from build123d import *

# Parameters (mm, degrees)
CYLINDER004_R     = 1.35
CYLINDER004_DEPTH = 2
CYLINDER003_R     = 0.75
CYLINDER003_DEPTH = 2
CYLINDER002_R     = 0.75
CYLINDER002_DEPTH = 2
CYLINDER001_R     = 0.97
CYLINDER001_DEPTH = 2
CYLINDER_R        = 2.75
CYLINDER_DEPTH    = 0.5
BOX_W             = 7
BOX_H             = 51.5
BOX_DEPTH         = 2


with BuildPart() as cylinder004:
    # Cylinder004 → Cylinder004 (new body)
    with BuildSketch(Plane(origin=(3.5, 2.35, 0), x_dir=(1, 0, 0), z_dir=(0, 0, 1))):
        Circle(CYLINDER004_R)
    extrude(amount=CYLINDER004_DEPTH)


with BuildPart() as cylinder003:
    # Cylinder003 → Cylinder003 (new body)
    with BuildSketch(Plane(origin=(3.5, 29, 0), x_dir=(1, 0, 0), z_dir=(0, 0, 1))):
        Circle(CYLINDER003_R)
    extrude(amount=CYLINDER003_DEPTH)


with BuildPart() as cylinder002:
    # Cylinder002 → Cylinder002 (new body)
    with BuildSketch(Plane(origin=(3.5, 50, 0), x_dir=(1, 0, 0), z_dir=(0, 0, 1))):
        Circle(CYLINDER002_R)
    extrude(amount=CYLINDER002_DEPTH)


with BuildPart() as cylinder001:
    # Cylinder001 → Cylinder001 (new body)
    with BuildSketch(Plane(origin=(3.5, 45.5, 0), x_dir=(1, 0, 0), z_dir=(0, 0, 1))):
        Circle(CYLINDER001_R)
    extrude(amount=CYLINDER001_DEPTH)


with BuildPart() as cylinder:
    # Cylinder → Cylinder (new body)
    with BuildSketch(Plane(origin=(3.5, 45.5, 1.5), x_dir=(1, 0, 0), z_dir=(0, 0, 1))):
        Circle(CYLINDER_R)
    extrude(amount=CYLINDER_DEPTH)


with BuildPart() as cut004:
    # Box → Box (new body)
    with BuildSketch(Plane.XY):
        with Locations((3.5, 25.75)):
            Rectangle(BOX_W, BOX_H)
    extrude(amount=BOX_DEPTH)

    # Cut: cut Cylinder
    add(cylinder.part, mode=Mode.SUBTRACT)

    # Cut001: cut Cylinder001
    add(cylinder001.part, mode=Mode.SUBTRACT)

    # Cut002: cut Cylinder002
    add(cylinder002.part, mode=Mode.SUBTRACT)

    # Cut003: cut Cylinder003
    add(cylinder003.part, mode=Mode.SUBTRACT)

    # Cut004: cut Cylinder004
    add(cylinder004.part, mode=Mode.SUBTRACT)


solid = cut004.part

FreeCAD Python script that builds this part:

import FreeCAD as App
import Part
import Sketcher

V = App.Vector

doc = App.newDocument("Part")
body = doc.addObject("PartDesign::Body", "Body")

sketch1 = doc.addObject("Sketcher::SketchObject", "Sketch")
body.addObject(sketch1)
sketch1.AttachmentSupport = (doc.XY_Plane, [""])
sketch1.MapMode = "FlatFace"
sketch1.addGeometry(Part.Circle(V(3.5, 2.4, 0), V(0, 0, 1), 1.4), False)
sketch1.addConstraint([
    Sketcher.Constraint("Diameter", 0, 2.7),
    Sketcher.Constraint("DistanceX", -1, 1, 0, 3, 3.5),
    Sketcher.Constraint("DistanceY", -1, 1, 0, 3, 2.35),
])
pad1 = doc.addObject("PartDesign::Pad", "Pad")
body.addObject(pad1)
pad1.Profile = sketch1
pad1.Length = 2
body2 = doc.addObject("PartDesign::Body", "Body001")

sketch2 = doc.addObject("Sketcher::SketchObject", "Sketch001")
body2.addObject(sketch2)
sketch2.AttachmentSupport = (doc.getObject("XY_Plane001"), [""])
sketch2.MapMode = "FlatFace"
sketch2.addGeometry(Part.Circle(V(3.5, 29, 0), V(0, 0, 1), 0.8), False)
sketch2.addConstraint([
    Sketcher.Constraint("Diameter", 0, 1.5),
    Sketcher.Constraint("DistanceY", -1, 1, 0, 3, 29.0),
    Sketcher.Constraint("DistanceX", -1, 1, 0, 3, 3.5),
])
pad2 = doc.addObject("PartDesign::Pad", "Pad001")
body2.addObject(pad2)
pad2.Profile = sketch2
pad2.Length = 2
body3 = doc.addObject("PartDesign::Body", "Body002")

sketch3 = doc.addObject("Sketcher::SketchObject", "Sketch002")
body3.addObject(sketch3)
sketch3.AttachmentSupport = (doc.getObject("XY_Plane002"), [""])
sketch3.MapMode = "FlatFace"
sketch3.addGeometry(Part.Circle(V(3.5, 50, 0), V(0, 0, 1), 0.8), False)
sketch3.addConstraint([
    Sketcher.Constraint("Diameter", 0, 1.5),
    Sketcher.Constraint("DistanceY", -1, 1, 0, 3, 50.0),
    Sketcher.Constraint("DistanceX", -1, 1, 0, 3, 3.5),
])
pad3 = doc.addObject("PartDesign::Pad", "Pad002")
body3.addObject(pad3)
pad3.Profile = sketch3
pad3.Length = 2
body4 = doc.addObject("PartDesign::Body", "Body003")

sketch4 = doc.addObject("Sketcher::SketchObject", "Sketch003")
body4.addObject(sketch4)
sketch4.AttachmentSupport = (doc.getObject("XY_Plane003"), [""])
sketch4.MapMode = "FlatFace"
sketch4.addGeometry(Part.Circle(V(3.5, 45.5, 0), V(0, 0, 1), 1), False)
sketch4.addConstraint([
    Sketcher.Constraint("Diameter", 0, 1.94),
    Sketcher.Constraint("DistanceX", -1, 1, 0, 3, 3.5),
    Sketcher.Constraint("DistanceY", -1, 1, 0, 3, 45.5),
])
pad4 = doc.addObject("PartDesign::Pad", "Pad003")
body4.addObject(pad4)
pad4.Profile = sketch4
pad4.Length = 2
body5 = doc.addObject("PartDesign::Body", "Body004")

sketch5 = doc.addObject("Sketcher::SketchObject", "Sketch004")
body5.addObject(sketch5)
sketch5.AttachmentSupport = (doc.getObject("XY_Plane004"), [""])
sketch5.MapMode = "FlatFace"
sketch5.AttachmentOffset = App.Placement(V(0, 0, 1.5), App.Rotation())
sketch5.addGeometry(Part.Circle(V(3.5, 45.5, 0), V(0, 0, 1), 2.8), False)
sketch5.addConstraint([
    Sketcher.Constraint("Diameter", 0, 5.5),
    Sketcher.Constraint("DistanceX", -1, 1, 0, 3, 3.5),
    Sketcher.Constraint("DistanceY", -1, 1, 0, 3, 45.5),
])
pad5 = doc.addObject("PartDesign::Pad", "Pad004")
body5.addObject(pad5)
pad5.Profile = sketch5
pad5.Length = 0.5
body6 = doc.addObject("PartDesign::Body", "Body005")

sketch6 = doc.addObject("Sketcher::SketchObject", "Sketch005")
body6.addObject(sketch6)
sketch6.AttachmentSupport = (doc.getObject("XY_Plane005"), [""])
sketch6.MapMode = "FlatFace"
sketch6.addGeometry([
    Part.LineSegment(V(0, 52, 0), V(0, 0, 0)),
    Part.LineSegment(V(0, 0, 0), V(7, 0, 0)),
    Part.LineSegment(V(7, 0, 0), V(7, 52, 0)),
    Part.LineSegment(V(7, 52, 0), V(0, 52, 0)),
], False)
sketch6.addConstraint([
    Sketcher.Constraint("Coincident", 0, 2, 1, 1),
    Sketcher.Constraint("Coincident", 1, 2, 2, 1),
    Sketcher.Constraint("Coincident", 2, 2, 3, 1),
    Sketcher.Constraint("Coincident", 3, 2, 0, 1),
    Sketcher.Constraint("Vertical", 0),
    Sketcher.Constraint("Horizontal", 1),
    Sketcher.Constraint("Vertical", 2),
    Sketcher.Constraint("Horizontal", 3),
    Sketcher.Constraint("Coincident", 0, 2, -1, 1),
    Sketcher.Constraint("DistanceX", 1, 1, 1, 2, 7.0),
    Sketcher.Constraint("DistanceY", 0, 2, 0, 1, 51.5),
])
pad6 = doc.addObject("PartDesign::Pad", "Pad005")
body6.addObject(pad6)
pad6.Profile = sketch6
pad6.Length = 2
doc.recompute()

boolean = doc.addObject("PartDesign::Boolean", "Boolean")
body6.addObject(boolean)
boolean.Type = "Cut"
boolean.addObjects([body5])
doc.recompute()

boolean2 = doc.addObject("PartDesign::Boolean", "Boolean001")
body6.addObject(boolean2)
boolean2.Type = "Cut"
boolean2.addObjects([body4])
doc.recompute()

boolean3 = doc.addObject("PartDesign::Boolean", "Boolean002")
body6.addObject(boolean3)
boolean3.Type = "Cut"
boolean3.addObjects([body3])
doc.recompute()

boolean4 = doc.addObject("PartDesign::Boolean", "Boolean003")
body6.addObject(boolean4)
boolean4.Type = "Cut"
boolean4.addObjects([body2])
doc.recompute()

boolean5 = doc.addObject("PartDesign::Boolean", "Boolean004")
body6.addObject(boolean5)
boolean5.Type = "Cut"
boolean5.addObjects([body])

doc.recompute()
